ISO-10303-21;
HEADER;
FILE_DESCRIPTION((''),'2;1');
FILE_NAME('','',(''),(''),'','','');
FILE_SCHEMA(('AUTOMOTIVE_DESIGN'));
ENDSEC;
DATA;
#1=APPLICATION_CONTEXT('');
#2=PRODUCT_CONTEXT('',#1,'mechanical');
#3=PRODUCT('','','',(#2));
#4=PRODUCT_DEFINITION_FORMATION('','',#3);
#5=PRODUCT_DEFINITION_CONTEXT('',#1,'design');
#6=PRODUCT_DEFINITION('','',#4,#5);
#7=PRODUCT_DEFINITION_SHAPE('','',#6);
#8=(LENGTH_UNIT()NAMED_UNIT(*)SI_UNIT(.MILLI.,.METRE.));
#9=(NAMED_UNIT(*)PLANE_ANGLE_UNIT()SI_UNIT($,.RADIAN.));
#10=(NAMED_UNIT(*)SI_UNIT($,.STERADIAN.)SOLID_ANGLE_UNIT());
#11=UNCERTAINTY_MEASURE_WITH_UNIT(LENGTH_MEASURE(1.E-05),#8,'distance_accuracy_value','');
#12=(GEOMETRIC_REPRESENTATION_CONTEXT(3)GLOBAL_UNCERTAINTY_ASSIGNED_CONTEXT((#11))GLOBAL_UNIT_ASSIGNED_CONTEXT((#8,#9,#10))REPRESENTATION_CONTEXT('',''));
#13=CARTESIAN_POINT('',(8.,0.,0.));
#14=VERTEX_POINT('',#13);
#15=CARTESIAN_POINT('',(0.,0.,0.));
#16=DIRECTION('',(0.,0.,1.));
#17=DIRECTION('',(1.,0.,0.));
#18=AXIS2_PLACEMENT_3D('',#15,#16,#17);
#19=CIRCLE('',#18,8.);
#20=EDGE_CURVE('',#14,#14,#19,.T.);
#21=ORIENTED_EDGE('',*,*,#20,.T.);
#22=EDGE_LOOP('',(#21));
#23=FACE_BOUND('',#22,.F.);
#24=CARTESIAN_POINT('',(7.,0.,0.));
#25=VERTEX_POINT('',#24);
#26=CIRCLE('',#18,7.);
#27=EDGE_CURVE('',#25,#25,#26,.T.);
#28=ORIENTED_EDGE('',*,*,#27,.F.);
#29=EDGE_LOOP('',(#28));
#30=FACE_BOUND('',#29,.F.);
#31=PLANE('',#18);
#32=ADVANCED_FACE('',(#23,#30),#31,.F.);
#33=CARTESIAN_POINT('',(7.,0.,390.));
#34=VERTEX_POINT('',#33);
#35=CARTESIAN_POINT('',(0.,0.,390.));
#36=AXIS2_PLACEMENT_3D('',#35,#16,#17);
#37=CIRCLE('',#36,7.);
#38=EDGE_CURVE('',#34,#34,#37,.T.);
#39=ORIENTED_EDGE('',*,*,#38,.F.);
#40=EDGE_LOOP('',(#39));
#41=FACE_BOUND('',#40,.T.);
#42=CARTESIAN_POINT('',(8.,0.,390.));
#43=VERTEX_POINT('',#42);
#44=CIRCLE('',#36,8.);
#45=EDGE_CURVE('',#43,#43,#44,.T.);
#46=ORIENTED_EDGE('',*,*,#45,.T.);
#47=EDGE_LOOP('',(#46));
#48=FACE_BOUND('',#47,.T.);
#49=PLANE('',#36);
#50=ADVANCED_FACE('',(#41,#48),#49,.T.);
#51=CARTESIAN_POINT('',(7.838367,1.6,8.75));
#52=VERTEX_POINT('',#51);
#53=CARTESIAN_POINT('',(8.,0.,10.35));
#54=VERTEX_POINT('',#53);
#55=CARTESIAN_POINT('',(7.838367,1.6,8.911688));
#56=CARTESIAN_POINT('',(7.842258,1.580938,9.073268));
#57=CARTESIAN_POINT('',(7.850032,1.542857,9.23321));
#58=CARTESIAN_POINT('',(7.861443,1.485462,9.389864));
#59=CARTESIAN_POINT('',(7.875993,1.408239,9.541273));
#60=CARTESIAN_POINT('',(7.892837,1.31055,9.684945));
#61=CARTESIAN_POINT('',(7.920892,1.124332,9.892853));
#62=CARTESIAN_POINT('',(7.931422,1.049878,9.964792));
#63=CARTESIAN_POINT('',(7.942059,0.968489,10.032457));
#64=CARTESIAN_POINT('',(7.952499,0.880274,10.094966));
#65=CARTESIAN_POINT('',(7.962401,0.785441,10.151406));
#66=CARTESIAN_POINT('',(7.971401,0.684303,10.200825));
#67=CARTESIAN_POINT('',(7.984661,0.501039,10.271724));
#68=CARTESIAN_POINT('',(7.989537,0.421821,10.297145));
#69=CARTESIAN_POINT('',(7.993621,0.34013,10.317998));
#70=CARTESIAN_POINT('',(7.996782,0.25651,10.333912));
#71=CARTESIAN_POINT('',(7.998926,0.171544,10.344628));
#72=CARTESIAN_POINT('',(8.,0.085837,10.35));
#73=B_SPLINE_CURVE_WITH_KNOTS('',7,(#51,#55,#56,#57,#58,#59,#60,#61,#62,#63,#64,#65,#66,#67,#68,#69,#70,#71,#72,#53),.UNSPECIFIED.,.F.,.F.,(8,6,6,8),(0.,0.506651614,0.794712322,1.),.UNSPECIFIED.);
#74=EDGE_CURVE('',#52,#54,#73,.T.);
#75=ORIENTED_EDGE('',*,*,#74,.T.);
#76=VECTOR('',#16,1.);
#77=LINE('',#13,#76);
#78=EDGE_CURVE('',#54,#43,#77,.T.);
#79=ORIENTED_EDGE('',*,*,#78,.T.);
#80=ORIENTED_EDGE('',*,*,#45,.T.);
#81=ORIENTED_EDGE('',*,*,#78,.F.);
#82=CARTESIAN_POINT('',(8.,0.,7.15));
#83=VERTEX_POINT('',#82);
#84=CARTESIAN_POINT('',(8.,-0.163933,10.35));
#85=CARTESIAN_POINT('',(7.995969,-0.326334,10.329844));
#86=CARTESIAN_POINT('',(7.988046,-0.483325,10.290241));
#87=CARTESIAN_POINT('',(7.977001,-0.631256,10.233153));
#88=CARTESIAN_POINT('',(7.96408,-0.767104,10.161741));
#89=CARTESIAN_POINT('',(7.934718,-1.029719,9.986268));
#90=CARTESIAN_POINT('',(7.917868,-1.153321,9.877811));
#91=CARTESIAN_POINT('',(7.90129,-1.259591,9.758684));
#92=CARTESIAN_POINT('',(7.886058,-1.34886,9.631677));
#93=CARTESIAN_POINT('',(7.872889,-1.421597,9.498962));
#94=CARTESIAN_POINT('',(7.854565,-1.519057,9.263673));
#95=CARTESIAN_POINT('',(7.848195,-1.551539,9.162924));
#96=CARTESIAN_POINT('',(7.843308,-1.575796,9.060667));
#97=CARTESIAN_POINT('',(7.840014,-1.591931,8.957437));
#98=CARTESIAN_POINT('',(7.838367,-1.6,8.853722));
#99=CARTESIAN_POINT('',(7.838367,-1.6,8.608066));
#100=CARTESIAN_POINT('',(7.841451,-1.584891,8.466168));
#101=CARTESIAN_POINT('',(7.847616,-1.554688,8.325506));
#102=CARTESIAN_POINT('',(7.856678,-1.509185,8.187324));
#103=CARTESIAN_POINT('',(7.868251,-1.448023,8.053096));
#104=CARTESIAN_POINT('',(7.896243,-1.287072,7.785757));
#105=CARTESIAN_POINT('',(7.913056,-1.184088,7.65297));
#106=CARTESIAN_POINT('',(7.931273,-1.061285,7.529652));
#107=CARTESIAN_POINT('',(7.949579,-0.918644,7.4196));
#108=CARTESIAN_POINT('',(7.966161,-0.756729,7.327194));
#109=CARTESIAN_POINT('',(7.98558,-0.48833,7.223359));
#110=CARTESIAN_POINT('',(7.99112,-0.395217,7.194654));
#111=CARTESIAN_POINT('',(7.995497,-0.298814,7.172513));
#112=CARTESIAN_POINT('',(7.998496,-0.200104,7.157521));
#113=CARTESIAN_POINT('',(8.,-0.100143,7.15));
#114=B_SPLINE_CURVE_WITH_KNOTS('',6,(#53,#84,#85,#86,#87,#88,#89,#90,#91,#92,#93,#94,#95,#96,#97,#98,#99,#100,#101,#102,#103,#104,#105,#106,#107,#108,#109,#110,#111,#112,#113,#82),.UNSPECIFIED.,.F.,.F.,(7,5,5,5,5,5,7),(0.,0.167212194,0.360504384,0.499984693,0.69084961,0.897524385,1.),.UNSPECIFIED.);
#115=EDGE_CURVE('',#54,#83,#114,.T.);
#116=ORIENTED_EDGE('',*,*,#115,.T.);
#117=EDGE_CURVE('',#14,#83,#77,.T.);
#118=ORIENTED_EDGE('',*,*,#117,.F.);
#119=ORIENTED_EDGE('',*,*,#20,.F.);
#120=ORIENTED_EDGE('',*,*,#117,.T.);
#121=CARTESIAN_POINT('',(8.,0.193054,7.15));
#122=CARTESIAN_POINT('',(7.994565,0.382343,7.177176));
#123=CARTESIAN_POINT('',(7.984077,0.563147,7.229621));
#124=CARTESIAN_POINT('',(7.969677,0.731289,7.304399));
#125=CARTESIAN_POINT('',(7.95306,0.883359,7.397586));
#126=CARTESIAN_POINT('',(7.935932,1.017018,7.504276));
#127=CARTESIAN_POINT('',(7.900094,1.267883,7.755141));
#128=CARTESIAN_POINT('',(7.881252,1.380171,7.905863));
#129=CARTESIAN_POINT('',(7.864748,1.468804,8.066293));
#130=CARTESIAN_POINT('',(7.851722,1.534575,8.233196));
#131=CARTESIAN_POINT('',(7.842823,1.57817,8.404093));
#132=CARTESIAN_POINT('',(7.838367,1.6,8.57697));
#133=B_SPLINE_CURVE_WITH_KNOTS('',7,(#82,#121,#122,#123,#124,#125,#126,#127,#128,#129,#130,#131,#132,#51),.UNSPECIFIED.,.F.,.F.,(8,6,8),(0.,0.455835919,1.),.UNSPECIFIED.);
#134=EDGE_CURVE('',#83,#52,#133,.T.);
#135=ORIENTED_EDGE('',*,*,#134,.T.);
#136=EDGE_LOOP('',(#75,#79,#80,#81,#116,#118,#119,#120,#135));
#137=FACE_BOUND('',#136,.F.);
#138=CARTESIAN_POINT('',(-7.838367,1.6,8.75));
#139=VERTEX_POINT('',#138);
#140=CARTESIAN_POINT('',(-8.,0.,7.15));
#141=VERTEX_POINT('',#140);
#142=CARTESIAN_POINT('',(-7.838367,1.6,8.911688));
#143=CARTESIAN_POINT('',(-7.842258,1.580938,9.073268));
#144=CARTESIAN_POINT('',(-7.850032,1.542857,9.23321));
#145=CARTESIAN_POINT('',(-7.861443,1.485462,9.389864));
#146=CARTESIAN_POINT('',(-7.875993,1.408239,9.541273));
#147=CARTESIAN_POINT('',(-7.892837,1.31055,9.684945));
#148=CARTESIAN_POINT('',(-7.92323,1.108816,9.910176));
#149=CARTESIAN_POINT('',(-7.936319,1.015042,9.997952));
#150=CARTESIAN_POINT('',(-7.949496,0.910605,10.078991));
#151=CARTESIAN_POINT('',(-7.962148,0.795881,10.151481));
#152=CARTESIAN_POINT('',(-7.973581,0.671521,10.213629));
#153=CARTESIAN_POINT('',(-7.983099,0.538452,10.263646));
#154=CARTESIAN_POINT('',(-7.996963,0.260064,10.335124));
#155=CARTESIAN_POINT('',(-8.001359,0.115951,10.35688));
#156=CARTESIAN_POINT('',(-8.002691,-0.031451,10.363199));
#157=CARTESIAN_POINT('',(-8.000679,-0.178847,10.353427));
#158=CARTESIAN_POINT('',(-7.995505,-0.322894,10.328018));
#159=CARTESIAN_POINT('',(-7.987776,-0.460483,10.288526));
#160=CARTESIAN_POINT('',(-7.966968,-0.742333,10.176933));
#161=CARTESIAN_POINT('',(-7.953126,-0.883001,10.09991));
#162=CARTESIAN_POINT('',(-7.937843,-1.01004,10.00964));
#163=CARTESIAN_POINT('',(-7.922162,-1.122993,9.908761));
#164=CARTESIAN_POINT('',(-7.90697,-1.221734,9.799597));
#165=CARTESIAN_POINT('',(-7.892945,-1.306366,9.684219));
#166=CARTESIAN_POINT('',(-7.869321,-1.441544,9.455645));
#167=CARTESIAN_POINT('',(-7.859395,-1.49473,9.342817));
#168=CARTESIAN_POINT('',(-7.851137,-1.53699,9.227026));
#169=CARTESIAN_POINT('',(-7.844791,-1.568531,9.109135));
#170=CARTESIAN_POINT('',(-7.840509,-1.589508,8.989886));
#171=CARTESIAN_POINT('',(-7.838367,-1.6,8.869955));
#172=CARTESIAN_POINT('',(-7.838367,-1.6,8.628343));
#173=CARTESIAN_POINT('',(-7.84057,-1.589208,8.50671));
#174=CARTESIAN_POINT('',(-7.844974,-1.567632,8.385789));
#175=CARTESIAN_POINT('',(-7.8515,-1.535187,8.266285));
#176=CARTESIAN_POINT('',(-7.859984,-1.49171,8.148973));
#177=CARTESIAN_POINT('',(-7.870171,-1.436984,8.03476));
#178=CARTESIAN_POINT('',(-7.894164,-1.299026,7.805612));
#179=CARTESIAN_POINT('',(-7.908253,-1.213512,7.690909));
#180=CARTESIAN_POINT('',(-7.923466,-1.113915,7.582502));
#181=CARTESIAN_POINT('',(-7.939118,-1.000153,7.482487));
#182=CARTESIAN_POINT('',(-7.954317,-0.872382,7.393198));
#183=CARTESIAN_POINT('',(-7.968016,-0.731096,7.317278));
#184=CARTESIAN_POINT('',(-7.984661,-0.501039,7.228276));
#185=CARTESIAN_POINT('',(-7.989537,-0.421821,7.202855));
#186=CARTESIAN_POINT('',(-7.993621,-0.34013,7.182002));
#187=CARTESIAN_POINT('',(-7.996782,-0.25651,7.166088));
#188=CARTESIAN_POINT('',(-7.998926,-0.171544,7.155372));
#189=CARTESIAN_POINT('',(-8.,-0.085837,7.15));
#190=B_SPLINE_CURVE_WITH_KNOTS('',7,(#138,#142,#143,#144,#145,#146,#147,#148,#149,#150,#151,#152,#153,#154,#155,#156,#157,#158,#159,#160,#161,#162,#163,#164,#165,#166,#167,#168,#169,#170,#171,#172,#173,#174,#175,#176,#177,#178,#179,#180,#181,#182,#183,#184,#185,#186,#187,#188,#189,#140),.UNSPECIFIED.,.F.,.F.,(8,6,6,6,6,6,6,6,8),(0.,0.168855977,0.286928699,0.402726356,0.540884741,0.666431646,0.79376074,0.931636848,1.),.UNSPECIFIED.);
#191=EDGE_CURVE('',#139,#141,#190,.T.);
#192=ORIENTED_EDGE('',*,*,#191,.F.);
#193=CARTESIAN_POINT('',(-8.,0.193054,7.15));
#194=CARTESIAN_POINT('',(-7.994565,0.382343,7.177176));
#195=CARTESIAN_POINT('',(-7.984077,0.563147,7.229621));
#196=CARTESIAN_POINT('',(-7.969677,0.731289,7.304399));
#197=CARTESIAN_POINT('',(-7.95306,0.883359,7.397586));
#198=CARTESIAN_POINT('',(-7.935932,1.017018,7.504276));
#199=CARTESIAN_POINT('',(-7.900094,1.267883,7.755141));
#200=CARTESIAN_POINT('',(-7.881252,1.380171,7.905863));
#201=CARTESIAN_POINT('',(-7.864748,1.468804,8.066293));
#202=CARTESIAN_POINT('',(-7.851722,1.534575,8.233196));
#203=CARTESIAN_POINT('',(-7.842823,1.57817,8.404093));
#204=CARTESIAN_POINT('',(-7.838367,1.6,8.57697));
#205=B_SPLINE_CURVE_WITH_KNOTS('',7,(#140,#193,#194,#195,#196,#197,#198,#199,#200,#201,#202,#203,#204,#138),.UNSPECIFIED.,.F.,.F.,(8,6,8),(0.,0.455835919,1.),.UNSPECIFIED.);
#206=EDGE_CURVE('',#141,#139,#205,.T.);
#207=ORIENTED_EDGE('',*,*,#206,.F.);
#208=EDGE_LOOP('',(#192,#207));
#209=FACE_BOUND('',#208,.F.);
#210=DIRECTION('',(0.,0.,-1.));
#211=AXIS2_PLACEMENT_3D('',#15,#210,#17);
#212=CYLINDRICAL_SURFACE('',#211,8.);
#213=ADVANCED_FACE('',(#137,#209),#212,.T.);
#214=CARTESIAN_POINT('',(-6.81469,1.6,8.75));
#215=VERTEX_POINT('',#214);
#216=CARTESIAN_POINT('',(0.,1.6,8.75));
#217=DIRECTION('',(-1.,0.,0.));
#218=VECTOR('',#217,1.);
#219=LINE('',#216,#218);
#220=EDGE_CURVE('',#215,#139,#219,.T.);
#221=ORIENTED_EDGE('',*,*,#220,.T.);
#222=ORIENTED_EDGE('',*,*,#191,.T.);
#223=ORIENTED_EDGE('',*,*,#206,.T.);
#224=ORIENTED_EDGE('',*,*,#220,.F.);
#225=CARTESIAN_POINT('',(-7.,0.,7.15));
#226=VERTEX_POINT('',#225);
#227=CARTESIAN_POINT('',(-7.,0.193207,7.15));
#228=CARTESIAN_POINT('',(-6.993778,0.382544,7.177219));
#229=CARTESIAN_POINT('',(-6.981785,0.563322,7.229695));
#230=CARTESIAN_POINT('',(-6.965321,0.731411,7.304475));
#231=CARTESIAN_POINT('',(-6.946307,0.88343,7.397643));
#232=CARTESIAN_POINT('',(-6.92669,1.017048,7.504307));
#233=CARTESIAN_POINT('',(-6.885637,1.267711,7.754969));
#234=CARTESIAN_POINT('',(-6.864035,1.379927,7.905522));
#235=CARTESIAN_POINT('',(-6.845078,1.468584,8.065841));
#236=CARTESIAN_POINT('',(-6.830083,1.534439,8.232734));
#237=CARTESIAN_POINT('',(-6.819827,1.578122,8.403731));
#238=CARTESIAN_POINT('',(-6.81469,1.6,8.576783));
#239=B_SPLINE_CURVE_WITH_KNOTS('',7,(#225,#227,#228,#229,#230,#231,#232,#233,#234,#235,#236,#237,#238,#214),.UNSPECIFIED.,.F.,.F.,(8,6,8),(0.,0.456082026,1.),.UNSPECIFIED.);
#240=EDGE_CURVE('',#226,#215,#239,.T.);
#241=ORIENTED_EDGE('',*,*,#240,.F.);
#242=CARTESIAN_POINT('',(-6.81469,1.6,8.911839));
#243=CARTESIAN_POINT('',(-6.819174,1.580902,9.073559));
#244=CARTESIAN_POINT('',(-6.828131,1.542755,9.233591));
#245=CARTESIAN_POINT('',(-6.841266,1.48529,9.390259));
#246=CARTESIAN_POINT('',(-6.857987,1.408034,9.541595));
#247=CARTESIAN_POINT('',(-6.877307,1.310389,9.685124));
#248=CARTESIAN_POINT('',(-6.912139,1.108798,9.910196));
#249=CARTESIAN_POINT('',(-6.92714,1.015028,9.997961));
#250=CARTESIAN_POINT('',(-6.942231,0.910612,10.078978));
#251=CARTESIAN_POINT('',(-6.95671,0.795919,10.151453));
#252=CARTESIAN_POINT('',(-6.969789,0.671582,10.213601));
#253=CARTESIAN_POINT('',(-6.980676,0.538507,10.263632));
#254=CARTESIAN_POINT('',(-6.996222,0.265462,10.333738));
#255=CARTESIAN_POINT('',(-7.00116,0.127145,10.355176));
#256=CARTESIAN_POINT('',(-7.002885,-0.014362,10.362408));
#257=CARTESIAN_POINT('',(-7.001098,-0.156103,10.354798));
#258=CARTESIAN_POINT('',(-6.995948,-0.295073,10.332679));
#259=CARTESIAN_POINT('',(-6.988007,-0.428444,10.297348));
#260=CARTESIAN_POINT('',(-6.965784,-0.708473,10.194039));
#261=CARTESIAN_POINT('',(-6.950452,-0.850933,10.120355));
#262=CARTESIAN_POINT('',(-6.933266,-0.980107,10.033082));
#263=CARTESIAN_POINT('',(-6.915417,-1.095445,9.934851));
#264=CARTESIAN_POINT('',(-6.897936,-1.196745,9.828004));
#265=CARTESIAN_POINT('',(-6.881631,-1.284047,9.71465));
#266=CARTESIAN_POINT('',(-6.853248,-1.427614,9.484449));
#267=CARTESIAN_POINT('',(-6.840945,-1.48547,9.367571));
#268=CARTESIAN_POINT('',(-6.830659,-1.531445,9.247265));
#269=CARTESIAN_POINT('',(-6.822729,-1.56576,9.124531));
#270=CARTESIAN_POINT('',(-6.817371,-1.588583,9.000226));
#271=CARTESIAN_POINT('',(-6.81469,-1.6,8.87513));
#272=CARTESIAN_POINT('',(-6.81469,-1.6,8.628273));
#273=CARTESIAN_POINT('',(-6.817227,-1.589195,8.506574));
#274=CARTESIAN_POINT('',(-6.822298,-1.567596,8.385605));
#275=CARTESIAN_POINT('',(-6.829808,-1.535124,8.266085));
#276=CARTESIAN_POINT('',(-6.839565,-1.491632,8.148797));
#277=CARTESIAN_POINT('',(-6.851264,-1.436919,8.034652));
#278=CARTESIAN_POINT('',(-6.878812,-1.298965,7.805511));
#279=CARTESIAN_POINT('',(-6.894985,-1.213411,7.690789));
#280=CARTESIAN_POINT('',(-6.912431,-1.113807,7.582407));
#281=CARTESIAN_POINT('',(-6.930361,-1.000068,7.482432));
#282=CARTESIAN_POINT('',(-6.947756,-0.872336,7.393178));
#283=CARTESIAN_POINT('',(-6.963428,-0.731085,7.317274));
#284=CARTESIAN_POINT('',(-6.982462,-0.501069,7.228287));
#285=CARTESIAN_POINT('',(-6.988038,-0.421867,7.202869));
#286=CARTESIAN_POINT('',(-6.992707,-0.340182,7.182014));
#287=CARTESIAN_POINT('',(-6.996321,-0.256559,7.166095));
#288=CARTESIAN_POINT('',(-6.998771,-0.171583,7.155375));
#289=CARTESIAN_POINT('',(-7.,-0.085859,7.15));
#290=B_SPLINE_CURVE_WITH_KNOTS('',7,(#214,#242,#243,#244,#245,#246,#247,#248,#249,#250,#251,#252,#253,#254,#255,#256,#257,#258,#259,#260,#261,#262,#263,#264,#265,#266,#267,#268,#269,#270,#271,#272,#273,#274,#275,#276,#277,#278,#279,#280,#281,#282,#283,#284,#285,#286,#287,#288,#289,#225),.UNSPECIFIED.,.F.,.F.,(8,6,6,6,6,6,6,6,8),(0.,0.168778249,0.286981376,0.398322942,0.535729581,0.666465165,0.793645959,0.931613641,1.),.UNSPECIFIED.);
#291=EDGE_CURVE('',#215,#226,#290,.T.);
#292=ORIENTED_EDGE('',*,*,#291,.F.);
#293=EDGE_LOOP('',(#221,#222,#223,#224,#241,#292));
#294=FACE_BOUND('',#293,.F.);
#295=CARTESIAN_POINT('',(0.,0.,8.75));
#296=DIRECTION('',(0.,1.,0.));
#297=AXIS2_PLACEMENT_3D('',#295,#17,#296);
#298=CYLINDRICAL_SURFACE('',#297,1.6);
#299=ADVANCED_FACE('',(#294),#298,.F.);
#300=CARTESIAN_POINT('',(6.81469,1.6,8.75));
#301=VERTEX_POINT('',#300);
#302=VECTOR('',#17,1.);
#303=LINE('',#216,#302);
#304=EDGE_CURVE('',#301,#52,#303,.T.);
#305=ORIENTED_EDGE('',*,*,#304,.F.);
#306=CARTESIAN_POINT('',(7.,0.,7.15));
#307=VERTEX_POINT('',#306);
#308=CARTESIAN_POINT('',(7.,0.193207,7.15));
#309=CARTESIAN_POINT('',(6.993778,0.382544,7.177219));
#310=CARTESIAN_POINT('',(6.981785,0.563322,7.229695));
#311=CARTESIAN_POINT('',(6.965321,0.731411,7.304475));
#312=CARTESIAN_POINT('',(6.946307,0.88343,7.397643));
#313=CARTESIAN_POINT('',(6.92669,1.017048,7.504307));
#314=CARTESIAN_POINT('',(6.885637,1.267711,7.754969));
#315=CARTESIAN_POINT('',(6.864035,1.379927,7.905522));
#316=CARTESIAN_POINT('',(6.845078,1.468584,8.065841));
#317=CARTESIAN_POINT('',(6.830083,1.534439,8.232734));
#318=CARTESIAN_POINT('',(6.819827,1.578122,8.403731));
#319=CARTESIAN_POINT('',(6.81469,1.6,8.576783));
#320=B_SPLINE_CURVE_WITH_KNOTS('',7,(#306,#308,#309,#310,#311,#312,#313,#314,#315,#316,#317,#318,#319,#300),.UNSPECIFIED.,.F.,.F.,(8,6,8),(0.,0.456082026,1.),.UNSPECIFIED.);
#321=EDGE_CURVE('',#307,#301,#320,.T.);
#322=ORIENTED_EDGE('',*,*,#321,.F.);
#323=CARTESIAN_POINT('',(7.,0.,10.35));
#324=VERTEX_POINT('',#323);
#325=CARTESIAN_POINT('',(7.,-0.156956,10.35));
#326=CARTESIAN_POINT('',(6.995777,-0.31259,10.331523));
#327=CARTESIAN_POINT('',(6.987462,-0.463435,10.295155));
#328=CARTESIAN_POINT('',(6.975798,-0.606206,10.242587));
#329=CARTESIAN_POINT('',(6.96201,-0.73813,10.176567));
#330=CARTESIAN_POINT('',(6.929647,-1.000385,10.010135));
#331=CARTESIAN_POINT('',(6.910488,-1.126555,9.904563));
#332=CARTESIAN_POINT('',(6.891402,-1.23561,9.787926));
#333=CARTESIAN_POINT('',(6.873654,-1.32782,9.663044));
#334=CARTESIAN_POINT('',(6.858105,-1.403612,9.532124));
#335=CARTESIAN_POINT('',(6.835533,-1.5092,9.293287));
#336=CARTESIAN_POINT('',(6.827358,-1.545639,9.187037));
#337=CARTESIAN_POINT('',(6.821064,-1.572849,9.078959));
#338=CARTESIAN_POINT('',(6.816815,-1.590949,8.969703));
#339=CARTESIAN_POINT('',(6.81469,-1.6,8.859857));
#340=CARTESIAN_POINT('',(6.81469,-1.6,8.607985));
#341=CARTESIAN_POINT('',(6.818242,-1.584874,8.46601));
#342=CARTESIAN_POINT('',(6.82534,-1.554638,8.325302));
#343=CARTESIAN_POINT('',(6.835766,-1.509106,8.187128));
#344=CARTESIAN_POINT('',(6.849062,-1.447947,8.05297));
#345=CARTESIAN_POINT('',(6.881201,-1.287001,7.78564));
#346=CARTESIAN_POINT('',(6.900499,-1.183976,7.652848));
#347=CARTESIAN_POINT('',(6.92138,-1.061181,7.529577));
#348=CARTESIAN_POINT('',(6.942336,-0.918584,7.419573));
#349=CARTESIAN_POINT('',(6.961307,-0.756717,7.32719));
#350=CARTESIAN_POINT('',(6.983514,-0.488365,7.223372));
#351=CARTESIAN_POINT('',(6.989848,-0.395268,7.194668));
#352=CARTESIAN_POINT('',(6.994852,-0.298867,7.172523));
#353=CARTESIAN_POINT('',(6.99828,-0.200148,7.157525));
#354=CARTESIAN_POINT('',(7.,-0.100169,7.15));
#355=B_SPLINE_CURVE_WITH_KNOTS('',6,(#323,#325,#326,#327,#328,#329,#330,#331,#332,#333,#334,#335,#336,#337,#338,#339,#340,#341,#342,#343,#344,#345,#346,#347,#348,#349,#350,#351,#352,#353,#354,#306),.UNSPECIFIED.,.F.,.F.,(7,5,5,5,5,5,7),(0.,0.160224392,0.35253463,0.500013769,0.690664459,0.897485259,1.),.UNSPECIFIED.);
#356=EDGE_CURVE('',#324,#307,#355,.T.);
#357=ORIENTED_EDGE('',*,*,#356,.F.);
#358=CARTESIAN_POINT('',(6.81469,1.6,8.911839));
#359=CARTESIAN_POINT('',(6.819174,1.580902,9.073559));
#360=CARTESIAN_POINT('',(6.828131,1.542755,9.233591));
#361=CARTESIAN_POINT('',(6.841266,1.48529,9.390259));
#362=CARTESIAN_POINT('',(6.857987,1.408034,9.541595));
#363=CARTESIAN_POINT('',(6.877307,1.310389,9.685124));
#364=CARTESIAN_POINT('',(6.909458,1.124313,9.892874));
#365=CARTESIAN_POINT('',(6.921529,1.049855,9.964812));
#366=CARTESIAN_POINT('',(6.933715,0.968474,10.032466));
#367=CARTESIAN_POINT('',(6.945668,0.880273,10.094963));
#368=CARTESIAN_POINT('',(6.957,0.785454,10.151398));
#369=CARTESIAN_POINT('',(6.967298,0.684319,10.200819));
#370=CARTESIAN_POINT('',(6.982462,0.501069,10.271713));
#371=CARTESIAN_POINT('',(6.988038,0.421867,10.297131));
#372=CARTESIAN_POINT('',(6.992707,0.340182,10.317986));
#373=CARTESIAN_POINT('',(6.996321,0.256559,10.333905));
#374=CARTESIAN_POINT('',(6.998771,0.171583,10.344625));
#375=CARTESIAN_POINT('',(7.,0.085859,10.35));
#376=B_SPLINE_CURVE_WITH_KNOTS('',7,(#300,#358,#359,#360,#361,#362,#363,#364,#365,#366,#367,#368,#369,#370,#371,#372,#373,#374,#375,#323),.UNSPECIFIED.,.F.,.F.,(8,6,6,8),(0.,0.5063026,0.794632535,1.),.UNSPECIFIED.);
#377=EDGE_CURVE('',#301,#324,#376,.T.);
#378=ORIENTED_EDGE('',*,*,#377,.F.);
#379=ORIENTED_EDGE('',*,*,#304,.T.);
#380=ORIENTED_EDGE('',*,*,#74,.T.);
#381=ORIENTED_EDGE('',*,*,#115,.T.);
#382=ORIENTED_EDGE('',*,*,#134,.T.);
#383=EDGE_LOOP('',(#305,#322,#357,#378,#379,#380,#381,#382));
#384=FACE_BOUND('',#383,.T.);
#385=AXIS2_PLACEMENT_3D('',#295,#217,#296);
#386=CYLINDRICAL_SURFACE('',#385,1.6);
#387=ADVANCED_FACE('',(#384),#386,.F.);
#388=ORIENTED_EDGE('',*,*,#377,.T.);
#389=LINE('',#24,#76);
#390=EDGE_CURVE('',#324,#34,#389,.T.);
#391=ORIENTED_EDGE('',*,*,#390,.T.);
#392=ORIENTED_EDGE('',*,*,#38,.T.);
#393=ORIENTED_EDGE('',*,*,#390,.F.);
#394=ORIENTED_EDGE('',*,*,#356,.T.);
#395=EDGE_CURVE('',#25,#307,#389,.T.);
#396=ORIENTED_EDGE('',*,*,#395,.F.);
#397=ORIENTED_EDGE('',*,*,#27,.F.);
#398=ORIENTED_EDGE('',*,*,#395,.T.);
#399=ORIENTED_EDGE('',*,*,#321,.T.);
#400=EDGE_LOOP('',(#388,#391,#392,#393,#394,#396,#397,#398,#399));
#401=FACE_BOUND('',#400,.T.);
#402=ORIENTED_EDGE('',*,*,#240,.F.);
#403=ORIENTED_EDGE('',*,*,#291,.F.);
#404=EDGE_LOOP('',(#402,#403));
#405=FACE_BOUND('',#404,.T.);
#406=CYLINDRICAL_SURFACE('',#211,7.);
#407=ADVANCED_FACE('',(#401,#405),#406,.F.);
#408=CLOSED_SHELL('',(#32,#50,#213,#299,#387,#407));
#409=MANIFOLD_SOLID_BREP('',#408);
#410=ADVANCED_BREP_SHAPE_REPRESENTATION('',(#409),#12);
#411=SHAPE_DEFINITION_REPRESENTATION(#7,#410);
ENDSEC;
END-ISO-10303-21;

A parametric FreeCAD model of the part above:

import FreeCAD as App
import Part
import Sketcher
Q = App.Units.Quantity

doc = App.newDocument("Part")
body = doc.addObject("PartDesign::Body", "Body")

sketch1 = doc.addObject("Sketcher::SketchObject", "Sketch")
body.addObject(sketch1)
sketch1.AttachmentSupport = (doc.XY_Plane, [""])
sketch1.MapMode = "FlatFace"
sketch1.addGeometry([
    Part.Circle(App.Vector(0, 0, 0), App.Vector(0, 0, 1), 8),
    Part.Circle(App.Vector(0, 0, 0), App.Vector(0, 0, 1), 7),
], False)
sketch1.addConstraint([
    Sketcher.Constraint("Coincident", 0, 3, -1, 1),
    Sketcher.Constraint("Coincident", 1, 3, -1, 1),
    Sketcher.Constraint("Diameter", 0, Q("16 mm")),
    Sketcher.Constraint("Diameter", 1, Q("14 mm")),
])
pad1 = doc.addObject("PartDesign::Pad", "Pad")
body.addObject(pad1)
pad1.Profile = sketch1
pad1.Length = 390

sketch2 = doc.addObject("Sketcher::SketchObject", "Sketch001")
body.addObject(sketch2)
sketch2.AttachmentSupport = (doc.YZ_Plane, [""])
sketch2.MapMode = "FlatFace"
sketch2.addGeometry(Part.Circle(App.Vector(0, 8.75, 0), App.Vector(0, 0, 1), 1.6), False)
sketch2.addConstraint([
    Sketcher.Constraint("PointOnObject", 0, 3, -2),
    Sketcher.Constraint("Diameter", 0, Q("3.2 mm")),
    Sketcher.Constraint("DistanceY", -1, 1, 0, 3, Q("8.75 mm")),
])
pocket1 = doc.addObject("PartDesign::Pocket", "Pocket")
body.addObject(pocket1)
pocket1.Profile = sketch2
pocket1.Type = "ThroughAll"
pocket1.Midplane = True

doc.recompute()
